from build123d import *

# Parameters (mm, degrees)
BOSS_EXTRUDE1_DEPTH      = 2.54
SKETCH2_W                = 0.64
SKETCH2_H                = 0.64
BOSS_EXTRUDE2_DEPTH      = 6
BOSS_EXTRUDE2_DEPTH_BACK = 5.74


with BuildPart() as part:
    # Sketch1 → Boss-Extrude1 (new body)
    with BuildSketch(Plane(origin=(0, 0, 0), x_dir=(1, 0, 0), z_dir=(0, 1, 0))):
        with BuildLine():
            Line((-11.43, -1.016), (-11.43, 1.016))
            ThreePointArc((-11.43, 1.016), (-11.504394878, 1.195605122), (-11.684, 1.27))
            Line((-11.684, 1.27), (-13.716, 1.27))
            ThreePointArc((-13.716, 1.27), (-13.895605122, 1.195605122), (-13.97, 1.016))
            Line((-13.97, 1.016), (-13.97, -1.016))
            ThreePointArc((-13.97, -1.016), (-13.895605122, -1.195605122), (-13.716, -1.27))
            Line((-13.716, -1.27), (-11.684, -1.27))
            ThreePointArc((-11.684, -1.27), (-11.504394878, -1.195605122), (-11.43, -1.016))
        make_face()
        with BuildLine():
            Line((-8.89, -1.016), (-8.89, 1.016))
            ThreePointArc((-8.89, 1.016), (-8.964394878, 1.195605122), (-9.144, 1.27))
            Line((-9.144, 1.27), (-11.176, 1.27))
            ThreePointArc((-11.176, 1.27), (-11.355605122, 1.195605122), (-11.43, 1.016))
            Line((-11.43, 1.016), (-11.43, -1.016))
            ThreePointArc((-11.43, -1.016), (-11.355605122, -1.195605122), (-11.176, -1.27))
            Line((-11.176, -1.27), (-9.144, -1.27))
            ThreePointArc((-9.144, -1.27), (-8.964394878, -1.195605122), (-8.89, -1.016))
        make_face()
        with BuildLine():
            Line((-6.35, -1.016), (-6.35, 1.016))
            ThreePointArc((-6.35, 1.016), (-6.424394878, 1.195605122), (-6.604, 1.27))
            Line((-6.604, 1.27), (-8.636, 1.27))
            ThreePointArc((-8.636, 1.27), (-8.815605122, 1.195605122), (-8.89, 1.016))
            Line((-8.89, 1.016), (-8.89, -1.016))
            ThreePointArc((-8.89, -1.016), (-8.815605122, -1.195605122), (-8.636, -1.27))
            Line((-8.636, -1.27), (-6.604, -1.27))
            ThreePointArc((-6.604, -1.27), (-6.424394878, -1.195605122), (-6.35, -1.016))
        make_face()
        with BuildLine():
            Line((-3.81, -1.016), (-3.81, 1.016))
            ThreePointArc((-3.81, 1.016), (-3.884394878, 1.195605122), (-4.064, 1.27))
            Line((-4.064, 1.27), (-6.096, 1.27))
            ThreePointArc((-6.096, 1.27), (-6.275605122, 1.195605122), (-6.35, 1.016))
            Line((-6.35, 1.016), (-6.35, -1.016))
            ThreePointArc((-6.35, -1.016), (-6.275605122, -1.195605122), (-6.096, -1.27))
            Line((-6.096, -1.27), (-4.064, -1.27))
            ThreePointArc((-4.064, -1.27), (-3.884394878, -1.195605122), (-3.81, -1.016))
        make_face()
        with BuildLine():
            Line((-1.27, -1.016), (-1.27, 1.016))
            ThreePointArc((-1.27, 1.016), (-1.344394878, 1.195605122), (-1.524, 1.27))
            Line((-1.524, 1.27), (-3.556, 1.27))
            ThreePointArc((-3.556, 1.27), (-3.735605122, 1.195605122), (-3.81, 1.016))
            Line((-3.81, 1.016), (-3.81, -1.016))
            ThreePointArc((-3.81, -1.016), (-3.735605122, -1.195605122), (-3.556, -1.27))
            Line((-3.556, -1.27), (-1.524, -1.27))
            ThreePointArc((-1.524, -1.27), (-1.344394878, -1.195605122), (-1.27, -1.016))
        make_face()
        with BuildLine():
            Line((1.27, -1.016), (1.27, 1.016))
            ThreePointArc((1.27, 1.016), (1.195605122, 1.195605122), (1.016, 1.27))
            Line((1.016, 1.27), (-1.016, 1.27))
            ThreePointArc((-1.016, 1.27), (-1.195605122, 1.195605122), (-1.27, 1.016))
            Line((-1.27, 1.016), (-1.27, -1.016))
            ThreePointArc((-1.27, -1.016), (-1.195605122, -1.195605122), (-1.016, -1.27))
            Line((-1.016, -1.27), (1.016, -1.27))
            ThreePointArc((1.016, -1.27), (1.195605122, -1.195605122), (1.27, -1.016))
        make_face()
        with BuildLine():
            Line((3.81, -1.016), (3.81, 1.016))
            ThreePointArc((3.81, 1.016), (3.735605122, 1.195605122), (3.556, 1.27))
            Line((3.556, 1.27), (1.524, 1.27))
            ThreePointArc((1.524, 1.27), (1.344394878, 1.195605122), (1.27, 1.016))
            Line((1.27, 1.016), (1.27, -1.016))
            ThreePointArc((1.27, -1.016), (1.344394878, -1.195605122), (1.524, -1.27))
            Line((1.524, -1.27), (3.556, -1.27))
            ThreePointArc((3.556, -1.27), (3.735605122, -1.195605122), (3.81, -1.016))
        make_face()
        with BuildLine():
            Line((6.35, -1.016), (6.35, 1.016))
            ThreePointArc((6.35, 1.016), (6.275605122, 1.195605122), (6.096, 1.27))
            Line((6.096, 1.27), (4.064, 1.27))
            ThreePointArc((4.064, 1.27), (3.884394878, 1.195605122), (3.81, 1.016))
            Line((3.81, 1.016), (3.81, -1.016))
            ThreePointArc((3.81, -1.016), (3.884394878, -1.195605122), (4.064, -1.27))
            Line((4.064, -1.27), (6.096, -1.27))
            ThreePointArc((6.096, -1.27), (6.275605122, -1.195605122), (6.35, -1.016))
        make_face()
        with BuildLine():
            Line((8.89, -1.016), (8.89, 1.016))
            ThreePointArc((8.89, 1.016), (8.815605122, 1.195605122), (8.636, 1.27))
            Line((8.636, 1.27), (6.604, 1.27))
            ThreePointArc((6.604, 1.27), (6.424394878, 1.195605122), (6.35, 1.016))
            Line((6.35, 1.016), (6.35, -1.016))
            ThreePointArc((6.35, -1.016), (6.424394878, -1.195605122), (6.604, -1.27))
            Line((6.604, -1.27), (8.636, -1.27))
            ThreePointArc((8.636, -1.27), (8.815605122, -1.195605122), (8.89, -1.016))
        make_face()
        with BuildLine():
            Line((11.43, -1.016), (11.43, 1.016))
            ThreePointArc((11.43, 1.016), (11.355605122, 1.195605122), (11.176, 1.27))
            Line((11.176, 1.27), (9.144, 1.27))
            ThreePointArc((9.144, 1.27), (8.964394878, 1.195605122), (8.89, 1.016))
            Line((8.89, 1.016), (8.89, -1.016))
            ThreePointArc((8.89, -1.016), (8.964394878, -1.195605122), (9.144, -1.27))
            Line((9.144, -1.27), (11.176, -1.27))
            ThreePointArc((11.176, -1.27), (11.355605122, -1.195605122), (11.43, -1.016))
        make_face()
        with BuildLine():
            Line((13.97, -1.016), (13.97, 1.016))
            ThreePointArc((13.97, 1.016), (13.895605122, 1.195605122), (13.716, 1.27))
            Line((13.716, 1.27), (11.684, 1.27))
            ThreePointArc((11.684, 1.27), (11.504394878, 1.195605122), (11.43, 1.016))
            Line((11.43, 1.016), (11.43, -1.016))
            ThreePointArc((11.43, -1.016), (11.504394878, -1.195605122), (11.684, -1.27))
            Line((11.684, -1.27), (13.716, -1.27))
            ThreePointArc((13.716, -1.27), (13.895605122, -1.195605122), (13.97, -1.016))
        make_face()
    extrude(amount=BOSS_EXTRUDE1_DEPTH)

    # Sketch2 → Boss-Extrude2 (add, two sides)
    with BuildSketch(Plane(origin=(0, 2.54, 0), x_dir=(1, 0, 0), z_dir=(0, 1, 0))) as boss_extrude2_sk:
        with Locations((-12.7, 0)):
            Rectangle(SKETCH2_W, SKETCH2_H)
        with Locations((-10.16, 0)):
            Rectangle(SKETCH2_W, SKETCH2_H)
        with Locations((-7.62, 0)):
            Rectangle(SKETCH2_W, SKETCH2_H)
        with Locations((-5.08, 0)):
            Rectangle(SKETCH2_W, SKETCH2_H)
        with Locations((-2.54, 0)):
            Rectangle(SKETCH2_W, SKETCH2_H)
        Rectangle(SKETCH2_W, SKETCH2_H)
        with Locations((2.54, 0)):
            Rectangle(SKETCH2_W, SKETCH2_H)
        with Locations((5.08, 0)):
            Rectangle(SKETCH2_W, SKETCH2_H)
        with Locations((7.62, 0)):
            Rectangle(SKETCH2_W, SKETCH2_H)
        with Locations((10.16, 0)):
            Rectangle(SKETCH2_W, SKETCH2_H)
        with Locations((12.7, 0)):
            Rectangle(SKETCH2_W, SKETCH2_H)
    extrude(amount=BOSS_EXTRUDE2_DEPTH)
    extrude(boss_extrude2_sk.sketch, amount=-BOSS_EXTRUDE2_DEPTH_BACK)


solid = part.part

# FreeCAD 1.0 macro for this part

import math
import FreeCAD as App
import Part
import Sketcher
Q = App.Units.Quantity


def add_polygon(sketch, points):
    """Adds a closed chain of lines whose ends are joined by coincident constraints."""
    first, n = sketch.GeometryCount, len(points)
    for a, b in zip(points, points[1:] + points[:1]):
        sketch.addGeometry(Part.LineSegment(App.Vector(*a, 0), App.Vector(*b, 0)), False)
    for i in range(n):
        sketch.addConstraint(Sketcher.Constraint("Coincident", first + i, 2, first + (i + 1) % n, 1))

doc = App.newDocument("Part")
body = doc.addObject("PartDesign::Body", "Body")

sketch1 = doc.addObject("Sketcher::SketchObject", "Sketch")
body.addObject(sketch1)
sketch1.AttachmentSupport = (doc.XZ_Plane, [""])
sketch1.MapMode = "FlatFace"
sketch1.addGeometry(Part.ArcOfCircle(Part.Circle(App.Vector(-11.68, -1.02, 0), App.Vector(0, 0, 1), 0.25), math.radians(-90), math.radians(0)), False)
sketch1.addGeometry(Part.LineSegment(App.Vector(-11.68, -1.27, 0), App.Vector(-13.72, -1.27, 0)), False)
sketch1.addGeometry(Part.ArcOfCircle(Part.Circle(App.Vector(-13.72, -1.02, 0), App.Vector(0, 0, 1), 0.25), math.radians(-180), math.radians(-90)), False)
sketch1.addGeometry(Part.LineSegment(App.Vector(-13.97, -1.02, 0), App.Vector(-13.97, 1.02, 0)), False)
sketch1.addGeometry(Part.ArcOfCircle(Part.Circle(App.Vector(-13.72, 1.02, 0), App.Vector(0, 0, 1), 0.25), math.radians(90), math.radians(180)), False)
sketch1.addGeometry(Part.LineSegment(App.Vector(-13.72, 1.27, 0), App.Vector(-11.68, 1.27, 0)), False)
sketch1.addGeometry(Part.ArcOfCircle(Part.Circle(App.Vector(-11.68, 1.02, 0), App.Vector(0, 0, 1), 0.25), math.radians(0), math.radians(90)), False)
sketch1.addGeometry(Part.ArcOfCircle(Part.Circle(App.Vector(-11.18, 1.02, 0), App.Vector(0, 0, 1), 0.25), math.radians(90), math.radians(180)), False)
sketch1.addGeometry(Part.LineSegment(App.Vector(-11.18, 1.27, 0), App.Vector(-9.14, 1.27, 0)), False)
sketch1.addGeometry(Part.ArcOfCircle(Part.Circle(App.Vector(-9.14, 1.02, 0), App.Vector(0, 0, 1), 0.25), math.radians(0), math.radians(90)), False)
sketch1.addGeometry(Part.ArcOfCircle(Part.Circle(App.Vector(-8.64, 1.02, 0), App.Vector(0, 0, 1), 0.25), math.radians(90), math.radians(180)), False)
sketch1.addGeometry(Part.LineSegment(App.Vector(-8.64, 1.27, 0), App.Vector(-6.6, 1.27, 0)), False)
sketch1.addGeometry(Part.ArcOfCircle(Part.Circle(App.Vector(-6.6, 1.02, 0), App.Vector(0, 0, 1), 0.25), math.radians(0), math.radians(90)), False)
sketch1.addGeometry(Part.ArcOfCircle(Part.Circle(App.Vector(-6.1, 1.02, 0), App.Vector(0, 0, 1), 0.25), math.radians(90), math.radians(180)), False)
sketch1.addGeometry(Part.LineSegment(App.Vector(-6.1, 1.27, 0), App.Vector(-4.06, 1.27, 0)), False)
sketch1.addGeometry(Part.ArcOfCircle(Part.Circle(App.Vector(-4.06, 1.02, 0), App.Vector(0, 0, 1), 0.25), math.radians(0), math.radians(90)), False)
sketch1.addGeometry(Part.ArcOfCircle(Part.Circle(App.Vector(-3.56, 1.02, 0), App.Vector(0, 0, 1), 0.25), math.radians(90), math.radians(180)), False)
sketch1.addGeometry(Part.LineSegment(App.Vector(-3.56, 1.27, 0), App.Vector(-1.52, 1.27, 0)), False)
sketch1.addGeometry(Part.ArcOfCircle(Part.Circle(App.Vector(-1.52, 1.02, 0), App.Vector(0, 0, 1), 0.25), math.radians(0), math.radians(90)), False)
sketch1.addGeometry(Part.ArcOfCircle(Part.Circle(App.Vector(-1.02, 1.02, 0), App.Vector(0, 0, 1), 0.25), math.radians(90), math.radians(180)), False)
sketch1.addGeometry(Part.LineSegment(App.Vector(-1.02, 1.27, 0), App.Vector(1.02, 1.27, 0)), False)
sketch1.addGeometry(Part.ArcOfCircle(Part.Circle(App.Vector(1.02, 1.02, 0), App.Vector(0, 0, 1), 0.25), math.radians(0), math.radians(90)), False)
sketch1.addGeometry(Part.ArcOfCircle(Part.Circle(App.Vector(1.52, 1.02, 0), App.Vector(0, 0, 1), 0.25), math.radians(90), math.radians(180)), False)
sketch1.addGeometry(Part.LineSegment(App.Vector(1.52, 1.27, 0), App.Vector(3.56, 1.27, 0)), False)
sketch1.addGeometry(Part.ArcOfCircle(Part.Circle(App.Vector(3.56, 1.02, 0), App.Vector(0, 0, 1), 0.25), math.radians(0), math.radians(90)), False)
sketch1.addGeometry(Part.ArcOfCircle(Part.Circle(App.Vector(4.06, 1.02, 0), App.Vector(0, 0, 1), 0.25), math.radians(90), math.radians(180)), False)
sketch1.addGeometry(Part.LineSegment(App.Vector(4.06, 1.27, 0), App.Vector(6.1, 1.27, 0)), False)
sketch1.addGeometry(Part.ArcOfCircle(Part.Circle(App.Vector(6.1, 1.02, 0), App.Vector(0, 0, 1), 0.25), math.radians(0), math.radians(90)), False)
sketch1.addGeometry(Part.ArcOfCircle(Part.Circle(App.Vector(6.6, 1.02, 0), App.Vector(0, 0, 1), 0.25), math.radians(90), math.radians(180)), False)
sketch1.addGeometry(Part.LineSegment(App.Vector(6.6, 1.27, 0), App.Vector(8.64, 1.27, 0)), False)
sketch1.addGeometry(Part.ArcOfCircle(Part.Circle(App.Vector(8.64, 1.02, 0), App.Vector(0, 0, 1), 0.25), math.radians(0), math.radians(90)), False)
sketch1.addGeometry(Part.ArcOfCircle(Part.Circle(App.Vector(9.14, 1.02, 0), App.Vector(0, 0, 1), 0.25), math.radians(90), math.radians(180)), False)
sketch1.addGeometry(Part.LineSegment(App.Vector(9.14, 1.27, 0), App.Vector(11.18, 1.27, 0)), False)
sketch1.addGeometry(Part.ArcOfCircle(Part.Circle(App.Vector(11.18, 1.02, 0), App.Vector(0, 0, 1), 0.25), math.radians(0), math.radians(90)), False)
sketch1.addGeometry(Part.ArcOfCircle(Part.Circle(App.Vector(11.68, 1.02, 0), App.Vector(0, 0, 1), 0.25), math.radians(90), math.radians(180)), False)
sketch1.addGeometry(Part.LineSegment(App.Vector(11.68, 1.27, 0), App.Vector(13.72, 1.27, 0)), False)
sketch1.addGeometry(Part.ArcOfCircle(Part.Circle(App.Vector(13.72, 1.02, 0), App.Vector(0, 0, 1), 0.25), math.radians(0), math.radians(90)), False)
sketch1.addGeometry(Part.LineSegment(App.Vector(13.97, 1.02, 0), App.Vector(13.97, -1.02, 0)), False)
sketch1.addGeometry(Part.ArcOfCircle(Part.Circle(App.Vector(13.72, -1.02, 0), App.Vector(0, 0, 1), 0.25), math.radians(-90), math.radians(0)), False)
sketch1.addGeometry(Part.LineSegment(App.Vector(13.72, -1.27, 0), App.Vector(11.68, -1.27, 0)), False)
sketch1.addGeometry(Part.ArcOfCircle(Part.Circle(App.Vector(11.68, -1.02, 0), App.Vector(0, 0, 1), 0.25), math.radians(-180), math.radians(-90)), False)
sketch1.addGeometry(Part.ArcOfCircle(Part.Circle(App.Vector(11.18, -1.02, 0), App.Vector(0, 0, 1), 0.25), math.radians(-90), math.radians(0)), False)
sketch1.addGeometry(Part.LineSegment(App.Vector(11.18, -1.27, 0), App.Vector(9.14, -1.27, 0)), False)
sketch1.addGeometry(Part.ArcOfCircle(Part.Circle(App.Vector(9.14, -1.02, 0), App.Vector(0, 0, 1), 0.25), math.radians(-180), math.radians(-90)), False)
sketch1.addGeometry(Part.ArcOfCircle(Part.Circle(App.Vector(8.64, -1.02, 0), App.Vector(0, 0, 1), 0.25), math.radians(-90), math.radians(0)), False)
sketch1.addGeometry(Part.LineSegment(App.Vector(8.64, -1.27, 0), App.Vector(6.6, -1.27, 0)), False)
sketch1.addGeometry(Part.ArcOfCircle(Part.Circle(App.Vector(6.6, -1.02, 0), App.Vector(0, 0, 1), 0.25), math.radians(-180), math.radians(-90)), False)
sketch1.addGeometry(Part.ArcOfCircle(Part.Circle(App.Vector(6.1, -1.02, 0), App.Vector(0, 0, 1), 0.25), math.radians(-90), math.radians(0)), False)
sketch1.addGeometry(Part.LineSegment(App.Vector(6.1, -1.27, 0), App.Vector(4.06, -1.27, 0)), False)
sketch1.addGeometry(Part.ArcOfCircle(Part.Circle(App.Vector(4.06, -1.02, 0), App.Vector(0, 0, 1), 0.25), math.radians(-180), math.radians(-90)), False)
sketch1.addGeometry(Part.ArcOfCircle(Part.Circle(App.Vector(3.56, -1.02, 0), App.Vector(0, 0, 1), 0.25), math.radians(-90), math.radians(0)), False)
sketch1.addGeometry(Part.LineSegment(App.Vector(3.56, -1.27, 0), App.Vector(1.52, -1.27, 0)), False)
sketch1.addGeometry(Part.ArcOfCircle(Part.Circle(App.Vector(1.52, -1.02, 0), App.Vector(0, 0, 1), 0.25), math.radians(-180), math.radians(-90)), False)
sketch1.addGeometry(Part.ArcOfCircle(Part.Circle(App.Vector(1.02, -1.02, 0), App.Vector(0, 0, 1), 0.25), math.radians(-90), math.radians(0)), False)
sketch1.addGeometry(Part.LineSegment(App.Vector(1.02, -1.27, 0), App.Vector(-1.02, -1.27, 0)), False)
sketch1.addGeometry(Part.ArcOfCircle(Part.Circle(App.Vector(-1.02, -1.02, 0), App.Vector(0, 0, 1), 0.25), math.radians(-180), math.radians(-90)), False)
sketch1.addGeometry(Part.ArcOfCircle(Part.Circle(App.Vector(-1.52, -1.02, 0), App.Vector(0, 0, 1), 0.25), math.radians(-90), math.radians(0)), False)
sketch1.addGeometry(Part.LineSegment(App.Vector(-1.52, -1.27, 0), App.Vector(-3.56, -1.27, 0)), False)
sketch1.addGeometry(Part.ArcOfCircle(Part.Circle(App.Vector(-3.56, -1.02, 0), App.Vector(0, 0, 1), 0.25), math.radians(-180), math.radians(-90)), False)
sketch1.addGeometry(Part.ArcOfCircle(Part.Circle(App.Vector(-4.06, -1.02, 0), App.Vector(0, 0, 1), 0.25), math.radians(-90), math.radians(0)), False)
sketch1.addGeometry(Part.LineSegment(App.Vector(-4.06, -1.27, 0), App.Vector(-6.1, -1.27, 0)), False)
sketch1.addGeometry(Part.ArcOfCircle(Part.Circle(App.Vector(-6.1, -1.02, 0), App.Vector(0, 0, 1), 0.25), math.radians(-180), math.radians(-90)), False)
sketch1.addGeometry(Part.ArcOfCircle(Part.Circle(App.Vector(-6.6, -1.02, 0), App.Vector(0, 0, 1), 0.25), math.radians(-90), math.radians(0)), False)
sketch1.addGeometry(Part.LineSegment(App.Vector(-6.6, -1.27, 0), App.Vector(-8.64, -1.27, 0)), False)
sketch1.addGeometry(Part.ArcOfCircle(Part.Circle(App.Vector(-8.64, -1.02, 0), App.Vector(0, 0, 1), 0.25), math.radians(-180), math.radians(-90)), False)
sketch1.addGeometry(Part.ArcOfCircle(Part.Circle(App.Vector(-9.14, -1.02, 0), App.Vector(0, 0, 1), 0.25), math.radians(-90), math.radians(0)), False)
sketch1.addGeometry(Part.LineSegment(App.Vector(-9.14, -1.27, 0), App.Vector(-11.18, -1.27, 0)), False)
sketch1.addGeometry(Part.ArcOfCircle(Part.Circle(App.Vector(-11.18, -1.02, 0), App.Vector(0, 0, 1), 0.25), math.radians(-180), math.radians(-90)), False)
sketch1.addConstraint(Sketcher.Constraint("Tangent", 0, 1, 1, 1))
sketch1.addConstraint(Sketcher.Constraint("Tangent", 1, 2, 2, 2))
sketch1.addConstraint(Sketcher.Constraint("Tangent", 2, 1, 3, 1))
sketch1.addConstraint(Sketcher.Constraint("Tangent", 3, 2, 4, 2))
sketch1.addConstraint(Sketcher.Constraint("Tangent", 4, 1, 5, 1))
sketch1.addConstraint(Sketcher.Constraint("Tangent", 5, 2, 6, 2))
sketch1.addConstraint(Sketcher.Constraint("Tangent", 6, 1, 7, 2))
sketch1.addConstraint(Sketcher.Constraint("Tangent", 7, 1, 8, 1))
sketch1.addConstraint(Sketcher.Constraint("Tangent", 8, 2, 9, 2))
sketch1.addConstraint(Sketcher.Constraint("Tangent", 9, 1, 10, 2))
sketch1.addConstraint(Sketcher.Constraint("Tangent", 10, 1, 11, 1))
sketch1.addConstraint(Sketcher.Constraint("Tangent", 11, 2, 12, 2))
sketch1.addConstraint(Sketcher.Constraint("Tangent", 12, 1, 13, 2))
sketch1.addConstraint(Sketcher.Constraint("Tangent", 13, 1, 14, 1))
sketch1.addConstraint(Sketcher.Constraint("Tangent", 14, 2, 15, 2))
sketch1.addConstraint(Sketcher.Constraint("Tangent", 15, 1, 16, 2))
sketch1.addConstraint(Sketcher.Constraint("Tangent", 16, 1, 17, 1))
sketch1.addConstraint(Sketcher.Constraint("Tangent", 17, 2, 18, 2))
sketch1.addConstraint(Sketcher.Constraint("Tangent", 18, 1, 19, 2))
sketch1.addConstraint(Sketcher.Constraint("Tangent", 19, 1, 20, 1))
sketch1.addConstraint(Sketcher.Constraint("Tangent", 20, 2, 21, 2))
sketch1.addConstraint(Sketcher.Constraint("Tangent", 21, 1, 22, 2))
sketch1.addConstraint(Sketcher.Constraint("Tangent", 22, 1, 23, 1))
sketch1.addConstraint(Sketcher.Constraint("Tangent", 23, 2, 24, 2))
sketch1.addConstraint(Sketcher.Constraint("Tangent", 24, 1, 25, 2))
sketch1.addConstraint(Sketcher.Constraint("Tangent", 25, 1, 26, 1))
sketch1.addConstraint(Sketcher.Constraint("Tangent", 26, 2, 27, 2))
sketch1.addConstraint(Sketcher.Constraint("Tangent", 27, 1, 28, 2))
sketch1.addConstraint(Sketcher.Constraint("Tangent", 28, 1, 29, 1))
sketch1.addConstraint(Sketcher.Constraint("Tangent", 29, 2, 30, 2))
sketch1.addConstraint(Sketcher.Constraint("Tangent", 30, 1, 31, 2))
sketch1.addConstraint(Sketcher.Constraint("Tangent", 31, 1, 32, 1))
sketch1.addConstraint(Sketcher.Constraint("Tangent", 32, 2, 33, 2))
sketch1.addConstraint(Sketcher.Constraint("Tangent", 33, 1, 34, 2))
sketch1.addConstraint(Sketcher.Constraint("Tangent", 34, 1, 35, 1))
sketch1.addConstraint(Sketcher.Constraint("Tangent", 35, 2, 36, 2))
sketch1.addConstraint(Sketcher.Constraint("Tangent", 36, 1, 37, 1))
sketch1.addConstraint(Sketcher.Constraint("Tangent", 37, 2, 38, 2))
sketch1.addConstraint(Sketcher.Constraint("Tangent", 38, 1, 39, 1))
sketch1.addConstraint(Sketcher.Constraint("Tangent", 39, 2, 40, 2))
sketch1.addConstraint(Sketcher.Constraint("Tangent", 40, 1, 41, 2))
sketch1.addConstraint(Sketcher.Constraint("Tangent", 41, 1, 42, 1))
sketch1.addConstraint(Sketcher.Constraint("Tangent", 42, 2, 43, 2))
sketch1.addConstraint(Sketcher.Constraint("Tangent", 43, 1, 44, 2))
sketch1.addConstraint(Sketcher.Constraint("Tangent", 44, 1, 45, 1))
sketch1.addConstraint(Sketcher.Constraint("Tangent", 45, 2, 46, 2))
sketch1.addConstraint(Sketcher.Constraint("Tangent", 46, 1, 47, 2))
sketch1.addConstraint(Sketcher.Constraint("Tangent", 47, 1, 48, 1))
sketch1.addConstraint(Sketcher.Constraint("Tangent", 48, 2, 49, 2))
sketch1.addConstraint(Sketcher.Constraint("Tangent", 49, 1, 50, 2))
sketch1.addConstraint(Sketcher.Constraint("Tangent", 50, 1, 51, 1))
sketch1.addConstraint(Sketcher.Constraint("Tangent", 51, 2, 52, 2))
sketch1.addConstraint(Sketcher.Constraint("Tangent", 52, 1, 53, 2))
sketch1.addConstraint(Sketcher.Constraint("Tangent", 53, 1, 54, 1))
sketch1.addConstraint(Sketcher.Constraint("Tangent", 54, 2, 55, 2))
sketch1.addConstraint(Sketcher.Constraint("Tangent", 55, 1, 56, 2))
sketch1.addConstraint(Sketcher.Constraint("Tangent", 56, 1, 57, 1))
sketch1.addConstraint(Sketcher.Constraint("Tangent", 57, 2, 58, 2))
sketch1.addConstraint(Sketcher.Constraint("Tangent", 58, 1, 59, 2))
sketch1.addConstraint(Sketcher.Constraint("Tangent", 59, 1, 60, 1))
sketch1.addConstraint(Sketcher.Constraint("Tangent", 60, 2, 61, 2))
sketch1.addConstraint(Sketcher.Constraint("Tangent", 61, 1, 62, 2))
sketch1.addConstraint(Sketcher.Constraint("Tangent", 62, 1, 63, 1))
sketch1.addConstraint(Sketcher.Constraint("Tangent", 63, 2, 64, 2))
sketch1.addConstraint(Sketcher.Constraint("Tangent", 64, 1, 65, 2))
sketch1.addConstraint(Sketcher.Constraint("Tangent", 65, 1, 66, 1))
sketch1.addConstraint(Sketcher.Constraint("Tangent", 66, 2, 67, 2))
sketch1.addConstraint(Sketcher.Constraint("Tangent", 67, 1, 0, 2))
sketch1.addConstraint(Sketcher.Constraint("Horizontal", 1))
sketch1.addConstraint(Sketcher.Constraint("Vertical", 3))
sketch1.addConstraint(Sketcher.Constraint("Horizontal", 5))
sketch1.addConstraint(Sketcher.Constraint("Horizontal", 8))
sketch1.addConstraint(Sketcher.Constraint("Horizontal", 11))
sketch1.addConstraint(Sketcher.Constraint("Horizontal", 14))
sketch1.addConstraint(Sketcher.Constraint("Horizontal", 17))
sketch1.addConstraint(Sketcher.Constraint("Horizontal", 20))
sketch1.addConstraint(Sketcher.Constraint("Horizontal", 23))
sketch1.addConstraint(Sketcher.Constraint("Horizontal", 26))
sketch1.addConstraint(Sketcher.Constraint("Horizontal", 29))
sketch1.addConstraint(Sketcher.Constraint("Horizontal", 32))
sketch1.addConstraint(Sketcher.Constraint("Horizontal", 35))
sketch1.addConstraint(Sketcher.Constraint("Vertical", 37))
sketch1.addConstraint(Sketcher.Constraint("Horizontal", 39))
sketch1.addConstraint(Sketcher.Constraint("Horizontal", 42))
sketch1.addConstraint(Sketcher.Constraint("Horizontal", 45))
sketch1.addConstraint(Sketcher.Constraint("Horizontal", 48))
sketch1.addConstraint(Sketcher.Constraint("Horizontal", 51))
sketch1.addConstraint(Sketcher.Constraint("Horizontal", 54))
sketch1.addConstraint(Sketcher.Constraint("Horizontal", 57))
sketch1.addConstraint(Sketcher.Constraint("Horizontal", 60))
sketch1.addConstraint(Sketcher.Constraint("Horizontal", 63))
sketch1.addConstraint(Sketcher.Constraint("Horizontal", 66))
sketch1.addConstraint(Sketcher.Constraint("Equal", 0, 2))
sketch1.addConstraint(Sketcher.Constraint("Equal", 2, 4))
sketch1.addConstraint(Sketcher.Constraint("Equal", 4, 6))
sketch1.addConstraint(Sketcher.Constraint("Equal", 6, 7))
sketch1.addConstraint(Sketcher.Constraint("Equal", 7, 9))
sketch1.addConstraint(Sketcher.Constraint("Equal", 9, 10))
sketch1.addConstraint(Sketcher.Constraint("Equal", 10, 12))
sketch1.addConstraint(Sketcher.Constraint("Equal", 12, 13))
sketch1.addConstraint(Sketcher.Constraint("Equal", 13, 15))
sketch1.addConstraint(Sketcher.Constraint("Equal", 15, 16))
sketch1.addConstraint(Sketcher.Constraint("Equal", 16, 18))
sketch1.addConstraint(Sketcher.Constraint("Equal", 18, 19))
sketch1.addConstraint(Sketcher.Constraint("Equal", 19, 21))
sketch1.addConstraint(Sketcher.Constraint("Equal", 21, 22))
sketch1.addConstraint(Sketcher.Constraint("Equal", 22, 24))
sketch1.addConstraint(Sketcher.Constraint("Equal", 24, 25))
sketch1.addConstraint(Sketcher.Constraint("Equal", 25, 27))
sketch1.addConstraint(Sketcher.Constraint("Equal", 27, 28))
sketch1.addConstraint(Sketcher.Constraint("Equal", 28, 30))
sketch1.addConstraint(Sketcher.Constraint("Equal", 30, 31))
sketch1.addConstraint(Sketcher.Constraint("Equal", 31, 33))
sketch1.addConstraint(Sketcher.Constraint("Equal", 33, 34))
sketch1.addConstraint(Sketcher.Constraint("Equal", 34, 36))
sketch1.addConstraint(Sketcher.Constraint("Equal", 36, 38))
sketch1.addConstraint(Sketcher.Constraint("Equal", 38, 40))
sketch1.addConstraint(Sketcher.Constraint("Equal", 40, 41))
sketch1.addConstraint(Sketcher.Constraint("Equal", 41, 43))
sketch1.addConstraint(Sketcher.Constraint("Equal", 43, 44))
sketch1.addConstraint(Sketcher.Constraint("Equal", 44, 46))
sketch1.addConstraint(Sketcher.Constraint("Equal", 46, 47))
sketch1.addConstraint(Sketcher.Constraint("Equal", 47, 49))
sketch1.addConstraint(Sketcher.Constraint("Equal", 49, 50))
sketch1.addConstraint(Sketcher.Constraint("Equal", 50, 52))
sketch1.addConstraint(Sketcher.Constraint("Equal", 52, 53))
sketch1.addConstraint(Sketcher.Constraint("Equal", 53, 55))
sketch1.addConstraint(Sketcher.Constraint("Equal", 55, 56))
sketch1.addConstraint(Sketcher.Constraint("Equal", 56, 58))
sketch1.addConstraint(Sketcher.Constraint("Equal", 58, 59))
sketch1.addConstraint(Sketcher.Constraint("Equal", 59, 61))
sketch1.addConstraint(Sketcher.Constraint("Equal", 61, 62))
sketch1.addConstraint(Sketcher.Constraint("Equal", 62, 64))
sketch1.addConstraint(Sketcher.Constraint("Equal", 64, 65))
sketch1.addConstraint(Sketcher.Constraint("Equal", 65, 67))
sketch1.addConstraint(Sketcher.Constraint("Symmetric", 0, 3, 34, 3, -1, 1))
sketch1.addConstraint(Sketcher.Constraint("Symmetric", 4, 3, 38, 3, -1, 1))
sketch1.addConstraint(Sketcher.Constraint("Symmetric", 7, 3, 41, 3, -1, 1))
sketch1.addConstraint(Sketcher.Constraint("Symmetric", 10, 3, 44, 3, -1, 1))
sketch1.addConstraint(Sketcher.Constraint("Symmetric", 13, 3, 47, 3, -1, 1))
sketch1.addConstraint(Sketcher.Constraint("Symmetric", 16, 3, 50, 3, -1, 1))
sketch1.addConstraint(Sketcher.Constraint("Symmetric", 19, 3, 53, 3, -1, 1))
sketch1.addConstraint(Sketcher.Constraint("Symmetric", 22, 3, 56, 3, -1, 1))
sketch1.addConstraint(Sketcher.Constraint("Symmetric", 25, 3, 59, 3, -1, 1))
sketch1.addConstraint(Sketcher.Constraint("Symmetric", 28, 3, 62, 3, -1, 1))
sketch1.addConstraint(Sketcher.Constraint("Symmetric", 31, 3, 65, 3, -1, 1))
sketch1.addConstraint(Sketcher.Constraint("Symmetric", 18, 3, 22, 3, -2))
sketch1.addConstraint(Sketcher.Constraint("Symmetric", 15, 3, 25, 3, -2))
sketch1.addConstraint(Sketcher.Constraint("Symmetric", 12, 3, 28, 3, -2))
sketch1.addConstraint(Sketcher.Constraint("Symmetric", 9, 3, 31, 3, -2))
sketch1.addConstraint(Sketcher.Constraint("Symmetric", 6, 3, 34, 3, -2))
sketch1.addConstraint(Sketcher.Constraint("Horizontal", 6, 3, 7, 3))
sketch1.addConstraint(Sketcher.Constraint("Horizontal", 9, 3, 10, 3))
sketch1.addConstraint(Sketcher.Constraint("Horizontal", 12, 3, 13, 3))
sketch1.addConstraint(Sketcher.Constraint("Horizontal", 15, 3, 16, 3))
sketch1.addConstraint(Sketcher.Constraint("Horizontal", 18, 3, 19, 3))
sketch1.addConstraint(Sketcher.Constraint("Equal", 5, 8))
sketch1.addConstraint(Sketcher.Constraint("Equal", 8, 11))
sketch1.addConstraint(Sketcher.Constraint("Equal", 11, 14))
sketch1.addConstraint(Sketcher.Constraint("Equal", 14, 17))
sketch1.addConstraint(Sketcher.Constraint("Equal", 17, 20))
sketch1.addConstraint(Sketcher.Constraint("Equal", 66, 3))
sketch1.addConstraint(Sketcher.Constraint("Radius", 0, Q("0.01 in")))
sketch1.addConstraint(Sketcher.Constraint("DistanceX", 1, 2, 1, 1, Q("0.08 in")))
pad1 = doc.addObject("PartDesign::Pad", "Pad")
body.addObject(pad1)
pad1.Profile = sketch1
pad1.Length = Q("0.1 in")
pad1.Reversed = True

sketch2 = doc.addObject("Sketcher::SketchObject", "Sketch001")
body.addObject(sketch2)
sketch2.AttachmentSupport = (doc.XZ_Plane, [""])
sketch2.MapMode = "FlatFace"
sketch2.AttachmentOffset = App.Placement(App.Vector(0, 0, -0.1 * 25.4), App.Rotation())
add_polygon(sketch2, [(-13, -0.3), (-13, 0.3), (-12.4, 0.3), (-12.4, -0.3)])
add_polygon(sketch2, [(-10.5, -0.3), (-10.5, 0.3), (-9.8, 0.3), (-9.8, -0.3)])
add_polygon(sketch2, [(-7.9, -0.3), (-7.9, 0.3), (-7.3, 0.3), (-7.3, -0.3)])
add_polygon(sketch2, [(-5.4, -0.3), (-5.4, 0.3), (-4.8, 0.3), (-4.8, -0.3)])
add_polygon(sketch2, [(-2.9, -0.3), (-2.9, 0.3), (-2.2, 0.3), (-2.2, -0.3)])
add_polygon(sketch2, [(-0.3, -0.3), (-0.3, 0.3), (0.3, 0.3), (0.3, -0.3)])
add_polygon(sketch2, [(2.2, -0.3), (2.2, 0.3), (2.9, 0.3), (2.9, -0.3)])
add_polygon(sketch2, [(4.8, -0.3), (4.8, 0.3), (5.4, 0.3), (5.4, -0.3)])
add_polygon(sketch2, [(7.3, -0.3), (7.3, 0.3), (7.9, 0.3), (7.9, -0.3)])
add_polygon(sketch2, [(9.8, -0.3), (9.8, 0.3), (10.5, 0.3), (10.5, -0.3)])
add_polygon(sketch2, [(12.4, -0.3), (12.4, 0.3), (13, 0.3), (13, -0.3)])
sketch2.addConstraint(Sketcher.Constraint("Vertical", 0))
sketch2.addConstraint(Sketcher.Constraint("Horizontal", 1))
sketch2.addConstraint(Sketcher.Constraint("Vertical", 2))
sketch2.addConstraint(Sketcher.Constraint("Horizontal", 3))
sketch2.addConstraint(Sketcher.Constraint("Vertical", 4))
sketch2.addConstraint(Sketcher.Constraint("Horizontal", 5))
sketch2.addConstraint(Sketcher.Constraint("Vertical", 6))
sketch2.addConstraint(Sketcher.Constraint("Horizontal", 7))
sketch2.addConstraint(Sketcher.Constraint("Vertical", 8))
sketch2.addConstraint(Sketcher.Constraint("Horizontal", 9))
sketch2.addConstraint(Sketcher.Constraint("Vertical", 10))
sketch2.addConstraint(Sketcher.Constraint("Horizontal", 11))
sketch2.addConstraint(Sketcher.Constraint("Vertical", 12))
sketch2.addConstraint(Sketcher.Constraint("Horizontal", 13))
sketch2.addConstraint(Sketcher.Constraint("Vertical", 14))
sketch2.addConstraint(Sketcher.Constraint("Horizontal", 15))
sketch2.addConstraint(Sketcher.Constraint("Vertical", 16))
sketch2.addConstraint(Sketcher.Constraint("Horizontal", 17))
sketch2.addConstraint(Sketcher.Constraint("Vertical", 18))
sketch2.addConstraint(Sketcher.Constraint("Horizontal", 19))
sketch2.addConstraint(Sketcher.Constraint("Vertical", 20))
sketch2.addConstraint(Sketcher.Constraint("Horizontal", 21))
sketch2.addConstraint(Sketcher.Constraint("Vertical", 22))
sketch2.addConstraint(Sketcher.Constraint("Horizontal", 23))
sketch2.addConstraint(Sketcher.Constraint("Vertical", 24))
sketch2.addConstraint(Sketcher.Constraint("Horizontal", 25))
sketch2.addConstraint(Sketcher.Constraint("Vertical", 26))
sketch2.addConstraint(Sketcher.Constraint("Horizontal", 27))
sketch2.addConstraint(Sketcher.Constraint("Vertical", 28))
sketch2.addConstraint(Sketcher.Constraint("Horizontal", 29))
sketch2.addConstraint(Sketcher.Constraint("Vertical", 30))
sketch2.addConstraint(Sketcher.Constraint("Horizontal", 31))
sketch2.addConstraint(Sketcher.Constraint("Vertical", 32))
sketch2.addConstraint(Sketcher.Constraint("Horizontal", 33))
sketch2.addConstraint(Sketcher.Constraint("Vertical", 34))
sketch2.addConstraint(Sketcher.Constraint("Horizontal", 35))
sketch2.addConstraint(Sketcher.Constraint("Vertical", 36))
sketch2.addConstraint(Sketcher.Constraint("Horizontal", 37))
sketch2.addConstraint(Sketcher.Constraint("Vertical", 38))
sketch2.addConstraint(Sketcher.Constraint("Horizontal", 39))
sketch2.addConstraint(Sketcher.Constraint("Vertical", 40))
sketch2.addConstraint(Sketcher.Constraint("Horizontal", 41))
sketch2.addConstraint(Sketcher.Constraint("Vertical", 42))
sketch2.addConstraint(Sketcher.Constraint("Horizontal", 43))
sketch2.addConstraint(Sketcher.Constraint("Symmetric", 20, 2, 22, 2, -1, 1))
sketch2.addConstraint(Sketcher.Constraint("Symmetric", 18, 2, 24, 2, -1, 1))
sketch2.addConstraint(Sketcher.Constraint("Symmetric", 16, 2, 26, 2, -1, 1))
sketch2.addConstraint(Sketcher.Constraint("Symmetric", 14, 2, 28, 2, -1, 1))
sketch2.addConstraint(Sketcher.Constraint("Symmetric", 12, 2, 30, 2, -1, 1))
sketch2.addConstraint(Sketcher.Constraint("Symmetric", 10, 2, 32, 2, -1, 1))
sketch2.addConstraint(Sketcher.Constraint("Symmetric", 8, 2, 34, 2, -1, 1))
sketch2.addConstraint(Sketcher.Constraint("Symmetric", 6, 2, 36, 2, -1, 1))
sketch2.addConstraint(Sketcher.Constraint("Symmetric", 4, 2, 38, 2, -1, 1))
sketch2.addConstraint(Sketcher.Constraint("Symmetric", 2, 2, 40, 2, -1, 1))
sketch2.addConstraint(Sketcher.Constraint("Symmetric", 0, 2, 42, 2, -1, 1))
sketch2.addConstraint(Sketcher.Constraint("Horizontal", 1, 2, 4, 2))
sketch2.addConstraint(Sketcher.Constraint("Horizontal", 3, 2, 6, 2))
sketch2.addConstraint(Sketcher.Constraint("Horizontal", 5, 2, 8, 2))
sketch2.addConstraint(Sketcher.Constraint("Horizontal", 7, 2, 10, 2))
sketch2.addConstraint(Sketcher.Constraint("Horizontal", 9, 2, 12, 2))
sketch2.addConstraint(Sketcher.Constraint("Horizontal", 11, 2, 14, 2))
sketch2.addConstraint(Sketcher.Constraint("Horizontal", 13, 2, 16, 2))
sketch2.addConstraint(Sketcher.Constraint("Horizontal", 15, 2, 18, 2))
sketch2.addConstraint(Sketcher.Constraint("Horizontal", 17, 2, 20, 2))
sketch2.addConstraint(Sketcher.Constraint("Horizontal", 19, 2, 22, 2))
sketch2.addConstraint(Sketcher.Constraint("Equal", 3, 5))
sketch2.addConstraint(Sketcher.Constraint("Equal", 7, 9))
sketch2.addConstraint(Sketcher.Constraint("Equal", 11, 13))
sketch2.addConstraint(Sketcher.Constraint("Equal", 15, 17))
sketch2.addConstraint(Sketcher.Constraint("Equal", 19, 21))
sketch2.addConstraint(Sketcher.Constraint("Equal", 43, 0))
sketch2.addConstraint(Sketcher.Constraint("DistanceX", 0, 2, 4, 2, Q("0.1 in")))
sketch2.addConstraint(Sketcher.Constraint("DistanceX", 4, 2, 8, 2, Q("0.1 in")))
sketch2.addConstraint(Sketcher.Constraint("DistanceX", 8, 2, 12, 2, Q("0.1 in")))
sketch2.addConstraint(Sketcher.Constraint("DistanceX", 12, 2, 16, 2, Q("0.1 in")))
sketch2.addConstraint(Sketcher.Constraint("DistanceX", 16, 2, 20, 2, Q("0.1 in")))
sketch2.addConstraint(Sketcher.Constraint("DistanceX", 1, 1, 1, 2, Q("0.64 mm")))
pad2 = doc.addObject("PartDesign::Pad", "Pad001")
body.addObject(pad2)
pad2.Profile = sketch2
pad2.Type = "TwoLengths"
pad2.Length = 6
pad2.Length2 = 5.74
pad2.Reversed = True

doc.recompute()
